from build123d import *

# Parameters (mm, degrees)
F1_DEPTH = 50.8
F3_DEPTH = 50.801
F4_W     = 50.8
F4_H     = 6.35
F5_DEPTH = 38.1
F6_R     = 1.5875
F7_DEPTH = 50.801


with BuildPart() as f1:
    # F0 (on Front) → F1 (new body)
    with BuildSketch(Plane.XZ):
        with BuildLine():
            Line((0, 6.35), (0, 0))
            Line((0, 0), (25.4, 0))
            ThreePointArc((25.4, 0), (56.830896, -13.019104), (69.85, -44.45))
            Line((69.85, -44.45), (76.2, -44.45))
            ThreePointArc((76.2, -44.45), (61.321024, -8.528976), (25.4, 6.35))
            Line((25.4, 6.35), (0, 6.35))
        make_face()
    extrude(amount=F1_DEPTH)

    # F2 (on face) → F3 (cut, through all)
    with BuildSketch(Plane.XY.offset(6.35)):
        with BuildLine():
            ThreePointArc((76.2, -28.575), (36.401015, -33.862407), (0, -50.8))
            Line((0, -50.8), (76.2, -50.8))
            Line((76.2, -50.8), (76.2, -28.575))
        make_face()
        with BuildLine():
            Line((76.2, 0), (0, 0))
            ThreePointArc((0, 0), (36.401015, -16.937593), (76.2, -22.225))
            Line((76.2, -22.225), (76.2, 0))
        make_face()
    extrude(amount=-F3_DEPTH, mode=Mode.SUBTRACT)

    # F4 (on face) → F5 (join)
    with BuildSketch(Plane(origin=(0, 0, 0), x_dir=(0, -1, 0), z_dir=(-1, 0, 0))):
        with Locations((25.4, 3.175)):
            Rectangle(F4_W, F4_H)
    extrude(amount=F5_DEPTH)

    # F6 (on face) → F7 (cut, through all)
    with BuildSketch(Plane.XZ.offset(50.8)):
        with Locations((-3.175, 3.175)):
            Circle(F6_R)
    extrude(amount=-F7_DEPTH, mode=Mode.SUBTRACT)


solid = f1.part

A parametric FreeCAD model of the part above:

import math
import FreeCAD as App
import Part
import Sketcher

V = App.Vector
Q = App.Units.Quantity

doc = App.newDocument("Part")
body = doc.addObject("PartDesign::Body", "Body")

sketch1 = doc.addObject("Sketcher::SketchObject", "Sketch")
body.addObject(sketch1)
sketch1.AttachmentSupport = (doc.XZ_Plane, [""])
sketch1.MapMode = "FlatFace"
sketch1.addGeometry([
    Part.LineSegment(V(0, 6, 0), V(0, 0, 0)),
    Part.LineSegment(V(0, 0, 0), V(25, 0, 0)),
    Part.ArcOfCircle(Part.Circle(V(25, -44, 0), V(0, 0, 1), 44), math.radians(0), math.radians(90)),
    Part.LineSegment(V(70, -44, 0), V(76, -44, 0)),
    Part.ArcOfCircle(Part.Circle(V(25, -44, 0), V(0, 0, 1), 51), math.radians(0), math.radians(90)),
    Part.LineSegment(V(25, 6, 0), V(0, 6, 0)),
], False)
sketch1.addConstraint([
    Sketcher.Constraint("Coincident", 0, 2, 1, 1),
    Sketcher.Constraint("Tangent", 1, 2, 2, 2),
    Sketcher.Constraint("Coincident", 2, 1, 3, 1),
    Sketcher.Constraint("Coincident", 3, 2, 4, 1),
    Sketcher.Constraint("Tangent", 4, 2, 5, 1),
    Sketcher.Constraint("Coincident", 5, 2, 0, 1),
    Sketcher.Constraint("Vertical", 0),
    Sketcher.Constraint("Horizontal", 1),
    Sketcher.Constraint("Horizontal", 3),
    Sketcher.Constraint("Horizontal", 5),
    Sketcher.Constraint("Coincident", 0, 2, -1, 1),
    Sketcher.Constraint("Coincident", 4, 3, 2, 3),
    Sketcher.Constraint("Horizontal", 4, 3, 2, 1),
    Sketcher.Constraint("Radius", 4, Q("2.0000001 in")),
    Sketcher.Constraint("DistanceX", 1, 1, 1, 2, Q("1 in")),
    Sketcher.Constraint("Radius", 2, Q("1.7500001 in")),
])
pad1 = doc.addObject("PartDesign::Pad", "Pad")
body.addObject(pad1)
pad1.Profile = sketch1
pad1.Length = Q("2 in")

sketch2 = doc.addObject("Sketcher::SketchObject", "Sketch001")
body.addObject(sketch2)
sketch2.AttachmentSupport = (doc.XY_Plane, [""])
sketch2.MapMode = "FlatFace"
sketch2.AttachmentOffset = App.Placement(V(0, 0, 0.25 * 25.4), App.Rotation())
sketch2.addGeometry([
    Part.ArcOfCircle(Part.Circle(V(74, -161, 0), V(0, 0, 1), 133), math.radians(89), math.radians(124)),
    Part.LineSegment(V(0, -51, 0), V(76, -51, 0)),
    Part.LineSegment(V(76, -51, 0), V(76, -29, 0)),
    Part.LineSegment(V(76, 0, 0), V(0, 0, 0)),
    Part.ArcOfCircle(Part.Circle(V(74, 111, 0), V(0, 0, 1), 133), math.radians(-124), math.radians(-89)),
    Part.LineSegment(V(76, -22, 0), V(76, 0, 0)),
], False)
sketch2.addConstraint([
    Sketcher.Constraint("Coincident", 0, 2, 1, 1),
    Sketcher.Constraint("Coincident", 1, 2, 2, 1),
    Sketcher.Constraint("Coincident", 2, 2, 0, 1),
    Sketcher.Constraint("Coincident", 3, 2, 4, 1),
    Sketcher.Constraint("Coincident", 4, 2, 5, 1),
    Sketcher.Constraint("Coincident", 5, 2, 3, 1),
    Sketcher.Constraint("Horizontal", 1),
    Sketcher.Constraint("Vertical", 2),
    Sketcher.Constraint("Horizontal", 3),
    Sketcher.Constraint("Vertical", 5),
    Sketcher.Constraint("Coincident", 3, 2, -1, 1),
    Sketcher.Constraint("Equal", 0, 4),
    Sketcher.Constraint("PointOnObject", 0, 2, -2),
    Sketcher.Constraint("Vertical", 0, 3, 4, 3),
    Sketcher.Constraint("Vertical", 2, 2, 4, 2),
    Sketcher.Constraint("DistanceX", 1, 1, 1, 2, Q("3 in")),
    Sketcher.Constraint("DistanceY", 0, 2, -1, 1, Q("2 in")),
    Sketcher.Constraint("DistanceY", 2, 1, 2, 2, Q("0.875 in")),
    Sketcher.Constraint("Radius", 0, 132.825288),
])
pocket1 = doc.addObject("PartDesign::Pocket", "Pocket")
body.addObject(pocket1)
pocket1.Profile = sketch2
pocket1.Type = "ThroughAll"

sketch3 = doc.addObject("Sketcher::SketchObject", "Sketch002")
body.addObject(sketch3)
sketch3.AttachmentSupport = (doc.YZ_Plane, [""])
sketch3.MapMode = "FlatFace"
sketch3.addGeometry([
    Part.LineSegment(V(0, 6, 0), V(0, 0, 0)),
    Part.LineSegment(V(0, 0, 0), V(-51, 0, 0)),
    Part.LineSegment(V(-51, 0, 0), V(-51, 6, 0)),
    Part.LineSegment(V(-51, 6, 0), V(0, 6, 0)),
], False)
sketch3.addConstraint([
    Sketcher.Constraint("Coincident", 0, 2, 1, 1),
    Sketcher.Constraint("Coincident", 1, 2, 2, 1),
    Sketcher.Constraint("Coincident", 2, 2, 3, 1),
    Sketcher.Constraint("Coincident", 3, 2, 0, 1),
    Sketcher.Constraint("Vertical", 0),
    Sketcher.Constraint("Horizontal", 1),
    Sketcher.Constraint("Vertical", 2),
    Sketcher.Constraint("Horizontal", 3),
    Sketcher.Constraint("Coincident", 0, 2, -1, 1),
    Sketcher.Constraint("DistanceX", 1, 2, 1, 1, Q("2 in")),
    Sketcher.Constraint("DistanceY", 0, 2, 0, 1, Q("0.25 in")),
])
pad2 = doc.addObject("PartDesign::Pad", "Pad001")
body.addObject(pad2)
pad2.Profile = sketch3
pad2.Length = Q("1.5 in")
pad2.Reversed = True

sketch4 = doc.addObject("Sketcher::SketchObject", "Sketch003")
body.addObject(sketch4)
sketch4.AttachmentSupport = (doc.XZ_Plane, [""])
sketch4.MapMode = "FlatFace"
sketch4.AttachmentOffset = App.Placement(V(0, 0, 2 * 25.4), App.Rotation())
sketch4.addGeometry(Part.Circle(V(-3.2, 3.2, 0), V(0, 0, 1), 1.6), False)
sketch4.addConstraint([
    Sketcher.Constraint("Diameter", 0, Q("0.125 in")),
    Sketcher.Constraint("DistanceX", 0, 3, -1, 1, Q("0.125 in")),
    Sketcher.Constraint("DistanceY", -1, 1, 0, 3, Q("0.125 in")),
])
pocket2 = doc.addObject("PartDesign::Pocket", "Pocket001")
body.addObject(pocket2)
pocket2.Profile = sketch4
pocket2.Type = "ThroughAll"

doc.recompute()
